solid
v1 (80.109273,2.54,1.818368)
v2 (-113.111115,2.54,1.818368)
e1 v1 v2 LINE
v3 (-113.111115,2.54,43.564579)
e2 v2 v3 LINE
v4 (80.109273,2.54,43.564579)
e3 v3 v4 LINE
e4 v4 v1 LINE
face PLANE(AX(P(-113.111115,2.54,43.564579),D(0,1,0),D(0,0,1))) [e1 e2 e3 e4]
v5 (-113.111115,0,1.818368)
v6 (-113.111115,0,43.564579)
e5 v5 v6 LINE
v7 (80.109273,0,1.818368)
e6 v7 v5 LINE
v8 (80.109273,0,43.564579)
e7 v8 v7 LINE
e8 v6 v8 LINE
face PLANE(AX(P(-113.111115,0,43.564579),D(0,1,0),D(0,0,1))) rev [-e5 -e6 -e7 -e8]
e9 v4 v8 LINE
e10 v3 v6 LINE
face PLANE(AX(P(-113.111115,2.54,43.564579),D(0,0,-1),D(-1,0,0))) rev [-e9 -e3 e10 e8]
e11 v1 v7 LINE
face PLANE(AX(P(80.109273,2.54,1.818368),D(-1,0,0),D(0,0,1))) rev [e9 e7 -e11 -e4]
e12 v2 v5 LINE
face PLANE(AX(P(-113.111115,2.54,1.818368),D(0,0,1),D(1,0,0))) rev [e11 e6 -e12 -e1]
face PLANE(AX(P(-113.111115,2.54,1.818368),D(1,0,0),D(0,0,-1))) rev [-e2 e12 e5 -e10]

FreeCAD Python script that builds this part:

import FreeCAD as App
import Part
import Sketcher
from FreeCAD import Vector
Q = App.Units.Quantity


def add_polygon(sketch, points):
    """Adds a closed chain of lines whose ends are joined by coincident constraints."""
    first, n = sketch.GeometryCount, len(points)
    for a, b in zip(points, points[1:] + points[:1]):
        sketch.addGeometry(Part.LineSegment(App.Vector(*a, 0), App.Vector(*b, 0)), False)
    for i in range(n):
        sketch.addConstraint(Sketcher.Constraint("Coincident", first + i, 2, first + (i + 1) % n, 1))

doc = App.newDocument("Part")
body = doc.addObject("PartDesign::Body", "Body")

# Sketch on XZ plane
sketch1 = body.newObject("Sketcher::SketchObject", "Sketch")
sketch1.AttachmentSupport = (doc.getObject("XZ_Plane"), [""])
sketch1.MapMode = "FlatFace"
add_polygon(sketch1, [(-113, 2), (-113, 44), (80, 44), (80, 2)])  # lines 0-3
sketch1.addConstraint([
    Sketcher.Constraint("Vertical", 0),
    Sketcher.Constraint("Horizontal", 1),
    Sketcher.Constraint("Vertical", 2),
    Sketcher.Constraint("Horizontal", 3),
    Sketcher.Constraint("DistanceY", 0, 1, 0, 2, 41.746211),
    Sketcher.Constraint("DistanceX", 1, 1, 1, 2, 193.220388),
    Sketcher.Constraint("DistanceY", -1, 1, 0, 2, 43.564579),
    Sketcher.Constraint("DistanceX", 0, 2, -1, 1, 113.111115),
])
pad1 = body.newObject("PartDesign::Pad", "Pad")
pad1.Profile = sketch1
pad1.Length = Q("0.1 in")
pad1.Reversed = True

doc.recompute()
